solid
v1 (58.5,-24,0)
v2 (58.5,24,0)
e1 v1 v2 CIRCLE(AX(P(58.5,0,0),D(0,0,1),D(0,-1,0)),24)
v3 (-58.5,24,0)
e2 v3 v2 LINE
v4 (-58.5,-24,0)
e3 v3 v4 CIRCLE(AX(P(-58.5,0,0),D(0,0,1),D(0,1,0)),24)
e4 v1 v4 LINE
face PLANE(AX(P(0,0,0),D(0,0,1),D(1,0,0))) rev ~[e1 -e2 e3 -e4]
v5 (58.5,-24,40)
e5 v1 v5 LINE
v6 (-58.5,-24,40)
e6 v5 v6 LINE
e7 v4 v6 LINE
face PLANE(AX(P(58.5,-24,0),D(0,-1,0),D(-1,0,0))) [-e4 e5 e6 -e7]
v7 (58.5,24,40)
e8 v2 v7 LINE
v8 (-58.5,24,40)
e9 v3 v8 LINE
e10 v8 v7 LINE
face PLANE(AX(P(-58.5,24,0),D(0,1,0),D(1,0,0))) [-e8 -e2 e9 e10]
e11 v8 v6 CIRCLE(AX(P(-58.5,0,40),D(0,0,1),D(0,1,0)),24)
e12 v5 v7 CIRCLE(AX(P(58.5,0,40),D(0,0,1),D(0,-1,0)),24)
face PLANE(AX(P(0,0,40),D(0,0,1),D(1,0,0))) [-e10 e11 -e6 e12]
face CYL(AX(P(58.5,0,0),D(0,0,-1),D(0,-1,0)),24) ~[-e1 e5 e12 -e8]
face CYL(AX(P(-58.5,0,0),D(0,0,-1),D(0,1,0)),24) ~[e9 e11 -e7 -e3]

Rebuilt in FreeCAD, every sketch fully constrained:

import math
import FreeCAD as App
import Part
import Sketcher

V = App.Vector

doc = App.newDocument("Part")
body = doc.addObject("PartDesign::Body", "Body")

sketch1 = body.newObject("Sketcher::SketchObject", "Sketch")
sketch1.AttachmentSupport = (doc.getObject("XY_Plane"), [""])
sketch1.MapMode = "FlatFace"
sketch1.addGeometry(Part.LineSegment(V(58, 24, 0), V(-58, 24, 0)), False)
sketch1.addGeometry(Part.ArcOfCircle(Part.Circle(V(-58, 0, 0), V(0, 0, 1), 24), math.radians(90), math.radians(270)), False)
sketch1.addGeometry(Part.LineSegment(V(-58, -24, 0), V(58, -24, 0)), False)
sketch1.addGeometry(Part.ArcOfCircle(Part.Circle(V(58, 0, 0), V(0, 0, 1), 24), math.radians(-90), math.radians(90)), False)
sketch1.addConstraint(Sketcher.Constraint("Tangent", 0, 2, 1, 1))
sketch1.addConstraint(Sketcher.Constraint("Tangent", 1, 2, 2, 1))
sketch1.addConstraint(Sketcher.Constraint("Tangent", 2, 2, 3, 1))
sketch1.addConstraint(Sketcher.Constraint("Tangent", 3, 2, 0, 1))
sketch1.addConstraint(Sketcher.Constraint("Horizontal", 0))
sketch1.addConstraint(Sketcher.Constraint("Horizontal", 2))
sketch1.addConstraint(Sketcher.Constraint("Symmetric", 1, 3, 3, 3, -1, 1))
sketch1.addConstraint(Sketcher.Constraint("Radius", 1, 24.0))
sketch1.addConstraint(Sketcher.Constraint("DistanceX", 0, 2, 0, 1, 117.0))
pad1 = body.newObject("PartDesign::Pad", "Pad")
pad1.Profile = sketch1
pad1.Length = 40

doc.recompute()
